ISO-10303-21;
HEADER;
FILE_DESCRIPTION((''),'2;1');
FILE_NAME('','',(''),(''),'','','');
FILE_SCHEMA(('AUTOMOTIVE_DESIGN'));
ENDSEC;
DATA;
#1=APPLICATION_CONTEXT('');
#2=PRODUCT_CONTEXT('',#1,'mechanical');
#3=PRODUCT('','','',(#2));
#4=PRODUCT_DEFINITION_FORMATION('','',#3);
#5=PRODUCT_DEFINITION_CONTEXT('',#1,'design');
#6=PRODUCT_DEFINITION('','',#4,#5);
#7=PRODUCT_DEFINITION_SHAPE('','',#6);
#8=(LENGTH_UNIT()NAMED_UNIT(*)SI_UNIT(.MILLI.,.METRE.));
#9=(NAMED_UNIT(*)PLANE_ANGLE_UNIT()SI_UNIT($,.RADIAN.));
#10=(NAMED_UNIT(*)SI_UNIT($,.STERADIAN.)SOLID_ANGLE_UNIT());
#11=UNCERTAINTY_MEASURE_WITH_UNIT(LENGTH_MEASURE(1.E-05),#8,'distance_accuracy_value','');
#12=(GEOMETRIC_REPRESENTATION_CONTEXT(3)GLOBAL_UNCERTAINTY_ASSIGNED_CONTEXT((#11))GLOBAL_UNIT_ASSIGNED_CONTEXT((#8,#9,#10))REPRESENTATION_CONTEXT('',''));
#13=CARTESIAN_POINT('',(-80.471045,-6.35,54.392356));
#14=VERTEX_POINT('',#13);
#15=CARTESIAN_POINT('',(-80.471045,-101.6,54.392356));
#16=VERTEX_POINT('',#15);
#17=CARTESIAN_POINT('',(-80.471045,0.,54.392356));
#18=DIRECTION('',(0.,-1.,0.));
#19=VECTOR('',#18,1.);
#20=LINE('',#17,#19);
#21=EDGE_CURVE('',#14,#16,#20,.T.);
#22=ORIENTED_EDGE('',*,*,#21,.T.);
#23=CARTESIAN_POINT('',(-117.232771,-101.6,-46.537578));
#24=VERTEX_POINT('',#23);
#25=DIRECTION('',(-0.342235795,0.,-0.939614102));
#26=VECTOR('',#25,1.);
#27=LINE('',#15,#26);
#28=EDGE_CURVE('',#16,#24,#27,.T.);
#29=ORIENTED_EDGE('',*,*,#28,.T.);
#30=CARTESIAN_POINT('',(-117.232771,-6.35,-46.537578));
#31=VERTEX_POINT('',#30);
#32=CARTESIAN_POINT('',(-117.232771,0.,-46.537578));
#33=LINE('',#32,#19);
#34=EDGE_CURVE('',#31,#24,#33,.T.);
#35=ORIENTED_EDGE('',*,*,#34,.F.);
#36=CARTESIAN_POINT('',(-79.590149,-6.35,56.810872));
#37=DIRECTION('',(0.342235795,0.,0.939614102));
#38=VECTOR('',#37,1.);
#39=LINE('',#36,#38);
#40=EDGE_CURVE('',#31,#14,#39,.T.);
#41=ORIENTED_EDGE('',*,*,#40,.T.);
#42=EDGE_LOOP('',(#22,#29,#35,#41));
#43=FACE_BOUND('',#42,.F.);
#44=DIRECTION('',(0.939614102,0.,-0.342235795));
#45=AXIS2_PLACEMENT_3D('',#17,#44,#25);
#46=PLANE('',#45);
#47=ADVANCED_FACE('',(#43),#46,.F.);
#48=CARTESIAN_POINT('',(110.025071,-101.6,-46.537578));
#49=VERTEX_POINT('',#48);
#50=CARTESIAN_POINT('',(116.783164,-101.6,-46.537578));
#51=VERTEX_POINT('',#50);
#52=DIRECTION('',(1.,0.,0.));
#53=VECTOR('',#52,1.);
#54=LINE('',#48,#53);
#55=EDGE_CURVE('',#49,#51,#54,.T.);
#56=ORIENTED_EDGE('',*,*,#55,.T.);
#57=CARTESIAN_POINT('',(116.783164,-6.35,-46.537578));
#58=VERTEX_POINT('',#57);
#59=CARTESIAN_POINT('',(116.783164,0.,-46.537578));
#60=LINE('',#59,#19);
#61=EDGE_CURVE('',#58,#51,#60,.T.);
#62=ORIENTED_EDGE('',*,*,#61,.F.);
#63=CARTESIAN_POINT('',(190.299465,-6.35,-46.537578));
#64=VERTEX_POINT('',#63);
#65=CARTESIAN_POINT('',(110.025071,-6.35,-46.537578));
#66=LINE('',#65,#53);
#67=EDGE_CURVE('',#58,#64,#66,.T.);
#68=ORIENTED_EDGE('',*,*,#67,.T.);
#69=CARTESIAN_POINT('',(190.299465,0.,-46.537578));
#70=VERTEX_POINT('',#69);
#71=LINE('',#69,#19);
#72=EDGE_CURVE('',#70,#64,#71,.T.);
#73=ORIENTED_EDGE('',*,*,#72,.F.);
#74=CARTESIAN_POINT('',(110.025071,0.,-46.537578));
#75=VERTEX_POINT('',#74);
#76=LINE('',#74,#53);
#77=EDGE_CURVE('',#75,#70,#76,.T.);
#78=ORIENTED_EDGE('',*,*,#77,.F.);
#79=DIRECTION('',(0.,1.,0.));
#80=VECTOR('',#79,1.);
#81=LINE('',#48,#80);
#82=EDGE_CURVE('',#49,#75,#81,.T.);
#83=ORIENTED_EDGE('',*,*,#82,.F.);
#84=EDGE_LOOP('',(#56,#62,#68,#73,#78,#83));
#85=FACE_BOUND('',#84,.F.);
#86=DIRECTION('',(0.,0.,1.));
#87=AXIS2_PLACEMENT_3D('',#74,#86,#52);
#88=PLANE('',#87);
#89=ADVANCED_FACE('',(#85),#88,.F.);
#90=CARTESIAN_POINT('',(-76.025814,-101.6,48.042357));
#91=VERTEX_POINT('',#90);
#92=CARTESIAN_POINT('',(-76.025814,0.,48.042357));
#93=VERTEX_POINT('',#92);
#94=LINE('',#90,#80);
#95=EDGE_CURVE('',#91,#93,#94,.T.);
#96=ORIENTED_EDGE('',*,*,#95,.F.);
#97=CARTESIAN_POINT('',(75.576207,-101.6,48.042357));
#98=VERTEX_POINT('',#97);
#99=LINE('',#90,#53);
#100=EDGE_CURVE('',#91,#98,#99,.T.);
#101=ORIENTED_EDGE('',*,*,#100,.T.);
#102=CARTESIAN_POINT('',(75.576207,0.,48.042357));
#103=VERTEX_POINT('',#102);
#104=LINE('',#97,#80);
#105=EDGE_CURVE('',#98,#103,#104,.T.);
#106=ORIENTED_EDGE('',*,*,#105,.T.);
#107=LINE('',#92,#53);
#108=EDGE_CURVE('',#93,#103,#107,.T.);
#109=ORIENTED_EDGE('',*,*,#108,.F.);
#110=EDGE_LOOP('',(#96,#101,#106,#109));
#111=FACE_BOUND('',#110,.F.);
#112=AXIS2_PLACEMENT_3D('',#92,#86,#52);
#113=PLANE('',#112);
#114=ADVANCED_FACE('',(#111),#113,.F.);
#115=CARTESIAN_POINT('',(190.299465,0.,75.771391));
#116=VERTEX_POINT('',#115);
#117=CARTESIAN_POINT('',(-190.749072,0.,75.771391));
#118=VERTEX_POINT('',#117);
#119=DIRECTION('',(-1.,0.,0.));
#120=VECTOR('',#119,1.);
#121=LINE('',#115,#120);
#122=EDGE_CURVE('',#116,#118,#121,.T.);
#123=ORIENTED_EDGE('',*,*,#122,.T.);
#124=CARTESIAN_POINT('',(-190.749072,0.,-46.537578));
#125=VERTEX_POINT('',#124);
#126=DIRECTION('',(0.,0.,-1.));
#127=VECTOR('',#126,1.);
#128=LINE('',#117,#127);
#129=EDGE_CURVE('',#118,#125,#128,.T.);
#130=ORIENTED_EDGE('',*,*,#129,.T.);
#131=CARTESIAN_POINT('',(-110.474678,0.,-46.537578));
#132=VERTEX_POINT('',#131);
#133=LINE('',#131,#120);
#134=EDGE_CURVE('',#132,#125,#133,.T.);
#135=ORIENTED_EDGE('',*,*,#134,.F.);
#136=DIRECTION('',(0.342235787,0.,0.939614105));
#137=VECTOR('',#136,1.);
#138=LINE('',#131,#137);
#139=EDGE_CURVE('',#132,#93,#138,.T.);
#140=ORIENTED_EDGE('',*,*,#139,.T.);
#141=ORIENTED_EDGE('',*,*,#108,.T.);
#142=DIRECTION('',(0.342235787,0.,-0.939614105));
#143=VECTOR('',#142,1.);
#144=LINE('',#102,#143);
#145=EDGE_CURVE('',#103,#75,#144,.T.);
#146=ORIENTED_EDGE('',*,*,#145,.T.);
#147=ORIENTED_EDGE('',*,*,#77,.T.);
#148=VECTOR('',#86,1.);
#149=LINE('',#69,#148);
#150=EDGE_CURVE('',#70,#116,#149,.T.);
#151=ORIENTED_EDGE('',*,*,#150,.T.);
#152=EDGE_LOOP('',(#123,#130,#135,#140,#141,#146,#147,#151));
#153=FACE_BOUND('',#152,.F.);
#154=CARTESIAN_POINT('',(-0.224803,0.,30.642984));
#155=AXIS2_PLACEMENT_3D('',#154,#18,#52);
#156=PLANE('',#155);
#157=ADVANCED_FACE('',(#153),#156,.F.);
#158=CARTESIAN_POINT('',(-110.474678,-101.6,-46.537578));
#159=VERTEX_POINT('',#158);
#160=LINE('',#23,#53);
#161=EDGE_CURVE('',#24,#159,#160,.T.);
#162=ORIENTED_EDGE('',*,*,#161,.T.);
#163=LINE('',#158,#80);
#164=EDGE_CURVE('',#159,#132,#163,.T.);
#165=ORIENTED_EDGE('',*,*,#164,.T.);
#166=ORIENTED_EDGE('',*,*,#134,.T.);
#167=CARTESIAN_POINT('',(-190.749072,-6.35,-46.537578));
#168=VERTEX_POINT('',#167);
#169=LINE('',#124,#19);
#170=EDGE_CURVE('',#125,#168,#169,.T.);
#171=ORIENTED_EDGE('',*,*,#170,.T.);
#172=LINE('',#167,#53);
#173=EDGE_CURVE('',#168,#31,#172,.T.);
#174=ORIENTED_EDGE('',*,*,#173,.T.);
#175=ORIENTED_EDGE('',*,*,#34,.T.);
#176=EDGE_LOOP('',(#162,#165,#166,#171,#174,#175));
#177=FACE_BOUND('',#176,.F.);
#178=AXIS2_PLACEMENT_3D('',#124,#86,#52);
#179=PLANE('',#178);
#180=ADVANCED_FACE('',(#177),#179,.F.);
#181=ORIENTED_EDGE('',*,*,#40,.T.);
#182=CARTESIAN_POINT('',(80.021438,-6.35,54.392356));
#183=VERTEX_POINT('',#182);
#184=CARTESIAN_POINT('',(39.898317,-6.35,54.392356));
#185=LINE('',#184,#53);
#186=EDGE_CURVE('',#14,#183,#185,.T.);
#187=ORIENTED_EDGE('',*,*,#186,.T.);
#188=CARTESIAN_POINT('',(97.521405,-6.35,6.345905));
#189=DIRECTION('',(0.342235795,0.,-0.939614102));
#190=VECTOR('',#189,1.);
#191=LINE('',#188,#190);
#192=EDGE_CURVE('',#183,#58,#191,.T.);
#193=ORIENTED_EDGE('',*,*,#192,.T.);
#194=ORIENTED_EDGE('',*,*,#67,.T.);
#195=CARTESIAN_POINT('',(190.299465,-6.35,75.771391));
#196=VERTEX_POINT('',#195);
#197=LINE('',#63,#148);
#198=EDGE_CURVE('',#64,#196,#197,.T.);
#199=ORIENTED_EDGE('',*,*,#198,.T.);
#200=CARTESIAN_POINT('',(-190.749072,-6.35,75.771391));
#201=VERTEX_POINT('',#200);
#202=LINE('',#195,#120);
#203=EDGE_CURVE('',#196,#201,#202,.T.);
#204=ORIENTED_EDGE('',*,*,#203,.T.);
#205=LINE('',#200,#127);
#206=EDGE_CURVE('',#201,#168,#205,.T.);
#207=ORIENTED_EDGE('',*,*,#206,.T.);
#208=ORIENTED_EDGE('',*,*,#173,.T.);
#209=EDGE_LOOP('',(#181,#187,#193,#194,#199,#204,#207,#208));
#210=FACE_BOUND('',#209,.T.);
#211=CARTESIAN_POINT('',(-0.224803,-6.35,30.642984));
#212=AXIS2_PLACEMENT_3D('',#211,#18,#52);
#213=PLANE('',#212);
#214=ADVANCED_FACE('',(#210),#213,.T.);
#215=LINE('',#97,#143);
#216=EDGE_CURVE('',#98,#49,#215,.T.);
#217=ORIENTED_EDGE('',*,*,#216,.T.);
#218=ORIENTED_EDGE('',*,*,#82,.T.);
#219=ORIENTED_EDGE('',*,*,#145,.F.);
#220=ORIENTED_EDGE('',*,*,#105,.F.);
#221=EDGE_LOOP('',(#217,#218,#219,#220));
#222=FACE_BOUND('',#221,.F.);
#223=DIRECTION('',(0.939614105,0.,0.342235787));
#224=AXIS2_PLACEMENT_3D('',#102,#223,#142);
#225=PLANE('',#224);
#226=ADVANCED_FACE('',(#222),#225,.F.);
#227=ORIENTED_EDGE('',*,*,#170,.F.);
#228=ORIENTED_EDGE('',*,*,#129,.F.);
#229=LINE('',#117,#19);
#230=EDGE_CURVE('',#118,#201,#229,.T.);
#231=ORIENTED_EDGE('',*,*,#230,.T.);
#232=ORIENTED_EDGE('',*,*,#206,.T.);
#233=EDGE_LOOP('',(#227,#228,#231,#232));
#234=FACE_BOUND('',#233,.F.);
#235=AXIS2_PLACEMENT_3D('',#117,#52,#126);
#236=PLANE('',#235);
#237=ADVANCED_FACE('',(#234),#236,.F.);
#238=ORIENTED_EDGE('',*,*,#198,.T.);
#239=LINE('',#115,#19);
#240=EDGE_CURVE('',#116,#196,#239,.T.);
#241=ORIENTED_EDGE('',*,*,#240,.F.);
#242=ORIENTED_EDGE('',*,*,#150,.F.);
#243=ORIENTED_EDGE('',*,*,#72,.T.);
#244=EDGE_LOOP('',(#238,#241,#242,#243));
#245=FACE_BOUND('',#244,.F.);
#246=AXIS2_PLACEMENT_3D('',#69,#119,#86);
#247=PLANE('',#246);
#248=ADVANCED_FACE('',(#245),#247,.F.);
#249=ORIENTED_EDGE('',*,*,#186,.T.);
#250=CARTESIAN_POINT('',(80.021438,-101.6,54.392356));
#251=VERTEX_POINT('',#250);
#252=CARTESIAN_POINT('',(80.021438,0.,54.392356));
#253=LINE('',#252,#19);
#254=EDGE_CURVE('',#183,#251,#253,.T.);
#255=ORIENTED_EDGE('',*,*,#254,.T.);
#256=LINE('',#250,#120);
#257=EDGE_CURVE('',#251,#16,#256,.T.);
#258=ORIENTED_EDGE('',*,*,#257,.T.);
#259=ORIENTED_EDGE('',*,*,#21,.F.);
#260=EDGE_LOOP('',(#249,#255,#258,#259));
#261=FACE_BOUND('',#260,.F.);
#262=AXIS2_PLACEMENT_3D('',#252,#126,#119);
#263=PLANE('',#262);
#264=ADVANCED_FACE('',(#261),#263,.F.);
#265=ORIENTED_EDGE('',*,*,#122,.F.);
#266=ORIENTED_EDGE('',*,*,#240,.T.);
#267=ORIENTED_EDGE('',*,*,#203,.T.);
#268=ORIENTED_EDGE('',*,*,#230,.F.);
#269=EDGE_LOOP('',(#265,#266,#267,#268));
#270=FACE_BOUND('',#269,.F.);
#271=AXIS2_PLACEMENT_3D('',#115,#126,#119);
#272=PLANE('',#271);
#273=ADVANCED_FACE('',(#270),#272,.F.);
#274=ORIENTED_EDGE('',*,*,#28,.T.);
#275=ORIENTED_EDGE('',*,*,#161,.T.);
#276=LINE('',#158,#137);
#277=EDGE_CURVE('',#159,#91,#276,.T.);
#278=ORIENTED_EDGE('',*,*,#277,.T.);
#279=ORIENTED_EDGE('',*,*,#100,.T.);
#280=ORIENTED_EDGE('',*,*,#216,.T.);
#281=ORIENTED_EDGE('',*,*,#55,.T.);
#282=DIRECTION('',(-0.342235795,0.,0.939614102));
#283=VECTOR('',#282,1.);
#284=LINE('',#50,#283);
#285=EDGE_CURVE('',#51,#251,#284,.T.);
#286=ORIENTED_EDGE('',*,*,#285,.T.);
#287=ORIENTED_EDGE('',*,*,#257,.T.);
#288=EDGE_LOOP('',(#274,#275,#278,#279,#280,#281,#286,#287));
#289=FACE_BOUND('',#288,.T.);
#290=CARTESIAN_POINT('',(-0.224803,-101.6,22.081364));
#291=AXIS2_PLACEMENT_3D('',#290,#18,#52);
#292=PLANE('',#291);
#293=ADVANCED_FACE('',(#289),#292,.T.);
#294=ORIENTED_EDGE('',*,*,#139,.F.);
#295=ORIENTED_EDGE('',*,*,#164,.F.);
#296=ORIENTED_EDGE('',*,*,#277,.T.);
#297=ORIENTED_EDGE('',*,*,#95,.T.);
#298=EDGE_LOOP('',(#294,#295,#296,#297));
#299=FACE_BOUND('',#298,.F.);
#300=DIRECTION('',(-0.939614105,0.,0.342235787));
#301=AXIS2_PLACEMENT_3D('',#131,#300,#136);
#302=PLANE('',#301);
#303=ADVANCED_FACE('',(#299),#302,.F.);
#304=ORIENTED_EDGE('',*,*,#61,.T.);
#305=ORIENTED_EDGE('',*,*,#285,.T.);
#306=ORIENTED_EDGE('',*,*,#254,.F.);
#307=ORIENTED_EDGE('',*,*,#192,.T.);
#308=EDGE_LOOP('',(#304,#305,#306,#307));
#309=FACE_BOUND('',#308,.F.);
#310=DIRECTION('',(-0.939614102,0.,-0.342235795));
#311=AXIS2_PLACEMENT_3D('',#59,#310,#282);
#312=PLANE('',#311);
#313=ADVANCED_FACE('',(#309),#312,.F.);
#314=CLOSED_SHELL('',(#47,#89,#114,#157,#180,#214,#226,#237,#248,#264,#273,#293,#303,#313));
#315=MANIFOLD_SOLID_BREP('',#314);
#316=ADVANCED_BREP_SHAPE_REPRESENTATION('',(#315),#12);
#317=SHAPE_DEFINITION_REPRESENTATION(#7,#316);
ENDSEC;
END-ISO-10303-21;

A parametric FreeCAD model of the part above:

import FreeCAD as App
import Part
import Sketcher

V = App.Vector
Q = App.Units.Quantity

doc = App.newDocument("Part")
body = doc.addObject("PartDesign::Body", "Body")

sketch1 = body.newObject("Sketcher::SketchObject", "Sketch")
sketch1.AttachmentSupport = (doc.getObject("XZ_Plane"), [""])
sketch1.MapMode = "FlatFace"
sketch1.addGeometry([
    Part.LineSegment(V(190, -47, 0), V(190, 76, 0)),
    Part.LineSegment(V(190, 76, 0), V(-191, 76, 0)),
    Part.LineSegment(V(-191, 76, 0), V(-191, -47, 0)),
    Part.LineSegment(V(-191, -47, 0), V(-110, -47, 0)),
    Part.LineSegment(V(-110, -47, 0), V(-76, 48, 0)),
    Part.LineSegment(V(-76, 48, 0), V(76, 48, 0)),
    Part.LineSegment(V(76, 48, 0), V(110, -47, 0)),
    Part.LineSegment(V(110, -47, 0), V(190, -47, 0)),
], False)
sketch1.addConstraint([
    Sketcher.Constraint("Coincident", 0, 2, 1, 1),
    Sketcher.Constraint("Coincident", 1, 2, 2, 1),
    Sketcher.Constraint("Coincident", 2, 2, 3, 1),
    Sketcher.Constraint("Coincident", 3, 2, 4, 1),
    Sketcher.Constraint("Coincident", 4, 2, 5, 1),
    Sketcher.Constraint("Coincident", 5, 2, 6, 1),
    Sketcher.Constraint("Coincident", 6, 2, 7, 1),
    Sketcher.Constraint("Coincident", 7, 2, 0, 1),
    Sketcher.Constraint("Vertical", 0),
    Sketcher.Constraint("Horizontal", 1),
    Sketcher.Constraint("Vertical", 2),
    Sketcher.Constraint("Horizontal", 3),
    Sketcher.Constraint("Horizontal", 5),
    Sketcher.Constraint("Horizontal", 7),
    Sketcher.Constraint("Horizontal", 3, 2, 6, 2),
    Sketcher.Constraint("Equal", 3, 7),
    Sketcher.Constraint("Equal", 4, 6),
    Sketcher.Constraint("DistanceX", 5, 1, 5, 2, Q("151.602021 mm")),
    Sketcher.Constraint("DistanceY", 0, 1, 0, 2, Q("122.308969 mm")),
    Sketcher.Constraint("DistanceX", 1, 2, 1, 1, Q("381.048537 mm")),
    Sketcher.Constraint("DistanceX", 3, 1, 3, 2, Q("80.274394 mm")),
    Sketcher.Constraint("DistanceY", -1, 1, 0, 2, Q("75.771391 mm")),
    Sketcher.Constraint("DistanceX", -1, 1, 6, 2, Q("110.025071 mm")),
    Sketcher.Constraint("Distance", 4, Q("100.658275 mm")),
])
pad1 = body.newObject("PartDesign::Pad", "Pad")
pad1.Profile = sketch1
pad1.Length = Q("0.25 in")

sketch2 = body.newObject("Sketcher::SketchObject", "Sketch001")
sketch2.AttachmentSupport = (doc.getObject("XZ_Plane"), [""])
sketch2.MapMode = "FlatFace"
sketch2.addGeometry([
    Part.LineSegment(V(110.025071, -46.537578, 0), V(116.783164, -46.537578, 0)),
    Part.LineSegment(V(116.783164, -46.537578, 0), V(80.021438, 54.392356, 0)),
    Part.LineSegment(V(80.021438, 54.392356, 0), V(-80.471045, 54.392356, 0)),
    Part.LineSegment(V(-80.471045, 54.392356, 0), V(-117.232771, -46.537578, 0)),
    Part.LineSegment(V(-117.232771, -46.537578, 0), V(-110.474678, -46.537578, 0)),
    Part.LineSegment(V(-110.474678, -46.537578, 0), V(-76.025814, 48.042357, 0)),
    Part.LineSegment(V(-76.025814, 48.042357, 0), V(75.576207, 48.042357, 0)),
    Part.LineSegment(V(75.576207, 48.042357, 0), V(110.025071, -46.537578, 0)),
], False)
sketch2.addConstraint([
    Sketcher.Constraint("Coincident", 0, 2, 1, 1),
    Sketcher.Constraint("Coincident", 1, 2, 2, 1),
    Sketcher.Constraint("Coincident", 2, 2, 3, 1),
    Sketcher.Constraint("Coincident", 3, 2, 4, 1),
    Sketcher.Constraint("Coincident", 4, 2, 5, 1),
    Sketcher.Constraint("Coincident", 5, 2, 6, 1),
    Sketcher.Constraint("Coincident", 6, 2, 7, 1),
    Sketcher.Constraint("Coincident", 7, 2, 0, 1),
    Sketcher.Constraint("Horizontal", 0),
    Sketcher.Constraint("Horizontal", 2),
    Sketcher.Constraint("Horizontal", 4),
    Sketcher.Constraint("Horizontal", 6),
    Sketcher.Constraint("DistanceY", 5, 2, 2, 2, Q("0.25 in")),
    Sketcher.Constraint("DistanceX", 6, 1, 6, 2, Q("151.602021 mm")),
    Sketcher.Constraint("DistanceX", 0, 1, 0, 2, Q("6.758093 mm")),
    Sketcher.Constraint("DistanceX", 2, 2, 2, 1, Q("160.492483 mm")),
    Sketcher.Constraint("DistanceX", 4, 1, 4, 2, Q("6.758093 mm")),
    Sketcher.Constraint("DistanceY", 0, 2, -1, 1, Q("46.537578 mm")),
    Sketcher.Constraint("DistanceX", -1, 1, 1, 2, Q("80.021438 mm")),
    Sketcher.Constraint("DistanceX", 3, 2, -1, 1, Q("117.232771 mm")),
    Sketcher.Constraint("DistanceY", 3, 2, -1, 1, Q("46.537578 mm")),
    Sketcher.Constraint("DistanceX", -1, 1, 7, 2, Q("110.025071 mm")),
    Sketcher.Constraint("DistanceX", 2, 2, 5, 2, Q("4.445231 mm")),
    Sketcher.Constraint("Distance", 1, Q("107.416368 mm")),
])
pad2 = body.newObject("PartDesign::Pad", "Pad001")
pad2.Profile = sketch2
pad2.Length = Q("4 in")

doc.recompute()
